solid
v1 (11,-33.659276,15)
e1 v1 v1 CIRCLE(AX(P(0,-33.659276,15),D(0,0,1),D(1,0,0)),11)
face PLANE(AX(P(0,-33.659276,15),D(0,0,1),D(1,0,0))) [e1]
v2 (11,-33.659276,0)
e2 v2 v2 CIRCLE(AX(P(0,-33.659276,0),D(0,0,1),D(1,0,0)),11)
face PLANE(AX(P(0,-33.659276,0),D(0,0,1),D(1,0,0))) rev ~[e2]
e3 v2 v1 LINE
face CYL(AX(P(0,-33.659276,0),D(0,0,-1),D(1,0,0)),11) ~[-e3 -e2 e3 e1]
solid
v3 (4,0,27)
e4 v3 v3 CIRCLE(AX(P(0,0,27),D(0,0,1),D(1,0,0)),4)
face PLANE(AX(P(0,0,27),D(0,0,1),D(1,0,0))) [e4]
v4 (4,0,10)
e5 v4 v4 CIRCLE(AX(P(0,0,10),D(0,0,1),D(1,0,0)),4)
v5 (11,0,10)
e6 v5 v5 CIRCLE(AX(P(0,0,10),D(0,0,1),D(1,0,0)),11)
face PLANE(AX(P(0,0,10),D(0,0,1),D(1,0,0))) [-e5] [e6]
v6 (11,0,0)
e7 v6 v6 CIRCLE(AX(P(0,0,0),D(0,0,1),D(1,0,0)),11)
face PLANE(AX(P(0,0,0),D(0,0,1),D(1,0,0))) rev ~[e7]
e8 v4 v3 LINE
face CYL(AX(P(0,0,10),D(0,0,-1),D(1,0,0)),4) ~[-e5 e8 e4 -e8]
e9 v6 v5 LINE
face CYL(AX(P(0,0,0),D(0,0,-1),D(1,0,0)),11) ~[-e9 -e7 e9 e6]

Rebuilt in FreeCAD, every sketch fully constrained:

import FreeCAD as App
import Part
import Sketcher

V = App.Vector
Q = App.Units.Quantity

doc = App.newDocument("Part")
body = doc.addObject("PartDesign::Body", "Body")

# Sketch on XY plane
sketch1 = doc.addObject("Sketcher::SketchObject", "Sketch")
body.addObject(sketch1)
sketch1.AttachmentSupport = (doc.XY_Plane, [""])
sketch1.MapMode = "FlatFace"
sketch1.addGeometry(Part.Circle(V(0, 0, 0), V(0, 0, 1), 11), False)
sketch1.addConstraint(Sketcher.Constraint("Coincident", 0, 3, -1, 1))
sketch1.addConstraint(Sketcher.Constraint("Diameter", 0, Q("22 mm")))
pad1 = doc.addObject("PartDesign::Pad", "Pad")
body.addObject(pad1)
pad1.Profile = sketch1
pad1.Length = 10

# Sketch on XY plane
sketch2 = doc.addObject("Sketcher::SketchObject", "Sketch001")
body.addObject(sketch2)
sketch2.AttachmentSupport = (doc.XY_Plane, [""])
sketch2.MapMode = "FlatFace"
sketch2.AttachmentOffset = App.Placement(V(0, 0, 10), App.Rotation())
sketch2.addGeometry(Part.Circle(V(0, 0, 0), V(0, 0, 1), 4), False)
sketch2.addConstraint(Sketcher.Constraint("Coincident", 0, 3, -1, 1))
sketch2.addConstraint(Sketcher.Constraint("Diameter", 0, Q("8 mm")))
pad2 = doc.addObject("PartDesign::Pad", "Pad001")
body.addObject(pad2)
pad2.Profile = sketch2
pad2.Length = 17
body2 = doc.addObject("PartDesign::Body", "Body001")

# Sketch on XY plane
sketch3 = doc.addObject("Sketcher::SketchObject", "Sketch002")
body2.addObject(sketch3)
sketch3.AttachmentSupport = (doc.getObject("XY_Plane001"), [""])
sketch3.MapMode = "FlatFace"
sketch3.addGeometry(Part.Circle(V(0, -34, 0), V(0, 0, 1), 11), False)
sketch3.addConstraint(Sketcher.Constraint("PointOnObject", 0, 3, -2))
sketch3.addConstraint(Sketcher.Constraint("Diameter", 0, Q("22 mm")))
sketch3.addConstraint(Sketcher.Constraint("DistanceY", 0, 3, -1, 1, Q("33.659276 mm")))
pad3 = doc.addObject("PartDesign::Pad", "Pad002")
body2.addObject(pad3)
pad3.Profile = sketch3
pad3.Length = 15

doc.recompute()
